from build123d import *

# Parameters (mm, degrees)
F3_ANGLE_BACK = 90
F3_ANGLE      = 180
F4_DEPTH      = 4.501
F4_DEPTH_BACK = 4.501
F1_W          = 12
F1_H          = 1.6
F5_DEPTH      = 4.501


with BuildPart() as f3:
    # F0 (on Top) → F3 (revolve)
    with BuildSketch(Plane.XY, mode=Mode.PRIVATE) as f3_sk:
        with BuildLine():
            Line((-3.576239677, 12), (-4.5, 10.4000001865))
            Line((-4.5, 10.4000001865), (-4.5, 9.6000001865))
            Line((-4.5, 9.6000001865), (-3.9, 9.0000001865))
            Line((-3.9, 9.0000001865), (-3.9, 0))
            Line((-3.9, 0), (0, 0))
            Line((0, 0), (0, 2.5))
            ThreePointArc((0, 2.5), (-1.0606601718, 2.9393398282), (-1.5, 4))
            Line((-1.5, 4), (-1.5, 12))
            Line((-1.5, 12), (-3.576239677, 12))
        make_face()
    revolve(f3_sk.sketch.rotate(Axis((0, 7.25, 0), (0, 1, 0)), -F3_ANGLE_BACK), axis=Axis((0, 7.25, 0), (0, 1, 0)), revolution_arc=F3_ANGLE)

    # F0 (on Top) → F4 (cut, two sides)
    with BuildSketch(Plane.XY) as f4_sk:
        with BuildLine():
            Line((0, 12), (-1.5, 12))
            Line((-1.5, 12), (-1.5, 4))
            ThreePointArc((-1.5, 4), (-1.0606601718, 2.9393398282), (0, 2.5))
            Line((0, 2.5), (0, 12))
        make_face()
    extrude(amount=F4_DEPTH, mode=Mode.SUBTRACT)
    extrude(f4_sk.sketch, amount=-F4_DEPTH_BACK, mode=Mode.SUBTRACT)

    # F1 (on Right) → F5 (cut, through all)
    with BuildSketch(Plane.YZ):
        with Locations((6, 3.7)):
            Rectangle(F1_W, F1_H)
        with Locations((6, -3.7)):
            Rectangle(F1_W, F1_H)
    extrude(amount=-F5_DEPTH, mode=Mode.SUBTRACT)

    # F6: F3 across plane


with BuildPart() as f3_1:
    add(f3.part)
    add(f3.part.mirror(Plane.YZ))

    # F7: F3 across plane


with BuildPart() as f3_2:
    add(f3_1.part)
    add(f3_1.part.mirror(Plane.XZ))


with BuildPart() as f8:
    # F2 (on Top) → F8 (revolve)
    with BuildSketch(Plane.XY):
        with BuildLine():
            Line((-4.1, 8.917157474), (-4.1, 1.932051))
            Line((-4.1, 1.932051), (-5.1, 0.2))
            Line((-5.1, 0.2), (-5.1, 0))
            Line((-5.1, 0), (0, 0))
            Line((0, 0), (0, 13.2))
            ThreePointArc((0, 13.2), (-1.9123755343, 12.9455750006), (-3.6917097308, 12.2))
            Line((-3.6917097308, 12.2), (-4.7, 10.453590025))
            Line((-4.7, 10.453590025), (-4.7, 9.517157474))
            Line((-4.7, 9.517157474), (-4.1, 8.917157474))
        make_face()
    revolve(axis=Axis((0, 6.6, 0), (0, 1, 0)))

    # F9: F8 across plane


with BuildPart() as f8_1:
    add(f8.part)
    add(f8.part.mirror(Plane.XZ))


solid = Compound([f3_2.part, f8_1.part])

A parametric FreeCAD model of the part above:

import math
import FreeCAD as App
import Part
import Sketcher
from FreeCAD import Vector
Q = App.Units.Quantity


def add_polygon(sketch, points):
    """Adds a closed chain of lines whose ends are joined by coincident constraints."""
    first, n = sketch.GeometryCount, len(points)
    for a, b in zip(points, points[1:] + points[:1]):
        sketch.addGeometry(Part.LineSegment(App.Vector(*a, 0), App.Vector(*b, 0)), False)
    for i in range(n):
        sketch.addConstraint(Sketcher.Constraint("Coincident", first + i, 2, first + (i + 1) % n, 1))

doc = App.newDocument("Part")
body = doc.addObject("PartDesign::Body", "Body")

sketch1 = body.newObject("Sketcher::SketchObject", "Sketch")
sketch1.AttachmentSupport = (doc.getObject("YZ_Plane"), [""])
sketch1.MapMode = "FlatFace"
sketch1.addGeometry([
    Part.LineSegment(Vector(12, -3.6, 0), Vector(10.4, -4.5, 0)),
    Part.LineSegment(Vector(10.4, -4.5, 0), Vector(9.6, -4.5, 0)),
    Part.LineSegment(Vector(9.6, -4.5, 0), Vector(9, -3.9, 0)),
    Part.LineSegment(Vector(9, -3.9, 0), Vector(0, -3.9, 0)),
    Part.LineSegment(Vector(0, -3.9, 0), Vector(0, 0, 0)),
    Part.LineSegment(Vector(0, 0, 0), Vector(2.5, 0, 0)),
    Part.ArcOfCircle(Part.Circle(Vector(4, 0, 0), Vector(0, 0, 1), 1.5), math.radians(180), math.radians(270)),
    Part.LineSegment(Vector(4, -1.5, 0), Vector(12, -1.5, 0)),
    Part.LineSegment(Vector(12, -1.5, 0), Vector(12, -3.6, 0)),
], False)
sketch1.addConstraint([
    Sketcher.Constraint("Coincident", 0, 2, 1, 1),
    Sketcher.Constraint("Coincident", 1, 2, 2, 1),
    Sketcher.Constraint("Coincident", 2, 2, 3, 1),
    Sketcher.Constraint("Coincident", 3, 2, 4, 1),
    Sketcher.Constraint("Coincident", 4, 2, 5, 1),
    Sketcher.Constraint("Coincident", 5, 2, 6, 1),
    Sketcher.Constraint("Tangent", 6, 2, 7, 1),
    Sketcher.Constraint("Coincident", 7, 2, 8, 1),
    Sketcher.Constraint("Coincident", 8, 2, 0, 1),
    Sketcher.Constraint("Horizontal", 1),
    Sketcher.Constraint("Horizontal", 3),
    Sketcher.Constraint("Vertical", 4),
    Sketcher.Constraint("Horizontal", 5),
    Sketcher.Constraint("Horizontal", 7),
    Sketcher.Constraint("Vertical", 8),
    Sketcher.Constraint("Coincident", 4, 2, -1, 1),
    Sketcher.Constraint("PointOnObject", 6, 3, -1),
    Sketcher.Constraint("Radius", 6, 1.5),
    Sketcher.Constraint("DistanceX", 3, 2, 3, 1, 9.0),
    Sketcher.Constraint("DistanceX", 7, 1, 7, 2, 8.0),
    Sketcher.Constraint("Angle", 0, Q("-150 deg")),
    Sketcher.Constraint("Angle", 2, Q("135 deg")),
    Sketcher.Constraint("DistanceX", 1, 2, 1, 1, 0.8),
    Sketcher.Constraint("DistanceX", 5, 1, 5, 2, 2.5),
    Sketcher.Constraint("DistanceY", 4, 1, 4, 2, 3.9),
    Sketcher.Constraint("DistanceY", 0, 2, 7, 2, 3.0),
])
revolution = body.newObject("PartDesign::Revolution", "Revolution")
revolution.Profile = sketch1
revolution.ReferenceAxis = (sketch1, ["H_Axis"])
revolution.Angle = 180

sketch2 = body.newObject("Sketcher::SketchObject", "Sketch001")
sketch2.AttachmentSupport = (doc.getObject("XY_Plane"), [""])
sketch2.MapMode = "FlatFace"
sketch2.addGeometry([
    Part.LineSegment(Vector(0, 12, 0), Vector(-1.5, 12, 0)),
    Part.LineSegment(Vector(-1.5, 12, 0), Vector(-1.5, 4, 0)),
    Part.ArcOfCircle(Part.Circle(Vector(0, 4, 0), Vector(0, 0, 1), 1.5), math.radians(180), math.radians(270)),
    Part.LineSegment(Vector(0, 2.5, 0), Vector(0, 12, 0)),
], False)
sketch2.addConstraint([
    Sketcher.Constraint("Coincident", 0, 2, 1, 1),
    Sketcher.Constraint("Tangent", 1, 2, 2, 1),
    Sketcher.Constraint("Coincident", 2, 2, 3, 1),
    Sketcher.Constraint("Coincident", 3, 2, 0, 1),
    Sketcher.Constraint("Horizontal", 0),
    Sketcher.Constraint("Vertical", 1),
    Sketcher.Constraint("Vertical", 3),
    Sketcher.Constraint("PointOnObject", 2, 3, -2),
    Sketcher.Constraint("PointOnObject", 2, 2, -2),
    Sketcher.Constraint("Radius", 2, 1.5),
    Sketcher.Constraint("DistanceY", 1, 2, 1, 1, 8.0),
    Sketcher.Constraint("DistanceY", -1, 1, 2, 3, 4.0),
])
pocket1 = body.newObject("PartDesign::Pocket", "Pocket")
pocket1.Profile = sketch2
pocket1.Type = "ThroughAll"
pocket1.Midplane = True

sketch3 = body.newObject("Sketcher::SketchObject", "Sketch002")
sketch3.AttachmentSupport = (doc.getObject("YZ_Plane"), [""])
sketch3.MapMode = "FlatFace"
add_polygon(sketch3, [(0, 4.5), (0, 2.9), (12, 2.9), (12, 4.5)])
add_polygon(sketch3, [(0, -2.9), (0, -4.5), (12, -4.5), (12, -2.9)])
sketch3.addConstraint([
    Sketcher.Constraint("Vertical", 0),
    Sketcher.Constraint("Horizontal", 1),
    Sketcher.Constraint("Vertical", 2),
    Sketcher.Constraint("Horizontal", 3),
    Sketcher.Constraint("Vertical", 4),
    Sketcher.Constraint("Horizontal", 5),
    Sketcher.Constraint("Vertical", 6),
    Sketcher.Constraint("Horizontal", 7),
    Sketcher.Constraint("Symmetric", 3, 2, 4, 2, -1, 1),
    Sketcher.Constraint("Symmetric", 1, 2, 6, 2, -1),
    Sketcher.Constraint("PointOnObject", 0, 2, -2),
    Sketcher.Constraint("DistanceX", 1, 1, 1, 2, 12.0),
    Sketcher.Constraint("DistanceY", 0, 2, 0, 1, 1.6),
    Sketcher.Constraint("DistanceY", 4, 2, 3, 2, 9.0),
])
pocket2 = body.newObject("PartDesign::Pocket", "Pocket001")
pocket2.Profile = sketch3
pocket2.Type = "ThroughAll"
body2 = doc.addObject("PartDesign::Body", "Body001")
doc.recompute()

body2.BaseFeature = body
doc.recompute()

mirroring = doc.addObject("Part::Mirroring", "Mirroring")
mirroring.Source = body
mirroring.Base = Vector(0, 0, 0)
mirroring.Normal = Vector(1, 0, 0)
body3 = doc.addObject("PartDesign::Body", "Body002")
body3.BaseFeature = mirroring
boolean = body2.newObject("PartDesign::Boolean", "Boolean")
boolean.Type = "Fuse"
boolean.addObjects([body3])
doc.recompute()
body4 = doc.addObject("PartDesign::Body", "Body003")
doc.recompute()

body4.BaseFeature = body2
doc.recompute()

mirroring2 = doc.addObject("Part::Mirroring", "Mirroring001")
mirroring2.Source = body2
mirroring2.Base = Vector(0, 0, 0)
mirroring2.Normal = Vector(0, -1, 0)
body5 = doc.addObject("PartDesign::Body", "Body004")
body5.BaseFeature = mirroring2
boolean2 = body4.newObject("PartDesign::Boolean", "Boolean001")
boolean2.Type = "Fuse"
boolean2.addObjects([body5])
doc.recompute()
body6 = doc.addObject("PartDesign::Body", "Body005")

sketch4 = body6.newObject("Sketcher::SketchObject", "Sketch003")
sketch4.AttachmentSupport = (doc.getObject("XY_Plane005"), [""])
sketch4.MapMode = "FlatFace"
sketch4.addGeometry([
    Part.LineSegment(Vector(-4.1, 8.92, 0), Vector(-4.1, 1.93, 0)),
    Part.LineSegment(Vector(-4.1, 1.93, 0), Vector(-5.1, 0.2, 0)),
    Part.LineSegment(Vector(-5.1, 0.2, 0), Vector(-5.1, 0, 0)),
    Part.LineSegment(Vector(-5.1, 0, 0), Vector(0, 0, 0)),
    Part.LineSegment(Vector(0, 0, 0), Vector(0, 13.2, 0)),
    Part.ArcOfCircle(Part.Circle(Vector(0, 5.89, 0), Vector(0, 0, 1), 7.31), math.radians(90), math.radians(120)),
    Part.LineSegment(Vector(-3.69, 12.2, 0), Vector(-4.7, 10.45, 0)),
    Part.LineSegment(Vector(-4.7, 10.45, 0), Vector(-4.7, 9.52, 0)),
    Part.LineSegment(Vector(-4.7, 9.52, 0), Vector(-4.1, 8.92, 0)),
], False)
sketch4.addConstraint([
    Sketcher.Constraint("Coincident", 0, 2, 1, 1),
    Sketcher.Constraint("Coincident", 1, 2, 2, 1),
    Sketcher.Constraint("Coincident", 2, 2, 3, 1),
    Sketcher.Constraint("Coincident", 3, 2, 4, 1),
    Sketcher.Constraint("Coincident", 4, 2, 5, 1),
    Sketcher.Constraint("Coincident", 5, 2, 6, 1),
    Sketcher.Constraint("Coincident", 6, 2, 7, 1),
    Sketcher.Constraint("Coincident", 7, 2, 8, 1),
    Sketcher.Constraint("Coincident", 8, 2, 0, 1),
    Sketcher.Constraint("Vertical", 0),
    Sketcher.Constraint("Vertical", 2),
    Sketcher.Constraint("Horizontal", 3),
    Sketcher.Constraint("Vertical", 4),
    Sketcher.Constraint("Vertical", 7),
    Sketcher.Constraint("Coincident", 3, 2, -1, 1),
    Sketcher.Constraint("PointOnObject", 5, 3, -2),
    Sketcher.Constraint("Parallel", 1, 6),
    Sketcher.Constraint("Angle", 1, Q("-119.999997 deg")),
    Sketcher.Constraint("Angle", 8, Q("-45 deg")),
    Sketcher.Constraint("Distance", 1, 2.0),
    Sketcher.Constraint("DistanceX", 3, 1, 3, 2, 5.1),
    Sketcher.Constraint("DistanceY", 2, 2, 2, 1, 0.2),
    Sketcher.Constraint("DistanceY", 4, 1, 4, 2, 13.2),
    Sketcher.Constraint("DistanceY", 5, 2, 4, 2, 1.0),
    Sketcher.Constraint("DistanceX", 6, 2, -1, 1, 4.7),
    Sketcher.Constraint("Radius", 5, 7.31436),
    Sketcher.Constraint("DistanceY", 0, 2, 0, 1, 6.985106),
])
revolution2 = body6.newObject("PartDesign::Revolution", "Revolution001")
revolution2.Profile = sketch4
revolution2.ReferenceAxis = (sketch4, ["V_Axis"])
revolution2.Angle = 360
body7 = doc.addObject("PartDesign::Body", "Body006")
doc.recompute()

body7.BaseFeature = body6
doc.recompute()

mirroring3 = doc.addObject("Part::Mirroring", "Mirroring002")
mirroring3.Source = body6
mirroring3.Base = Vector(0, 0, 0)
mirroring3.Normal = Vector(0, -1, 0)
body8 = doc.addObject("PartDesign::Body", "Body007")
body8.BaseFeature = mirroring3
boolean3 = body7.newObject("PartDesign::Boolean", "Boolean002")
boolean3.Type = "Fuse"
boolean3.addObjects([body8])
doc.recompute()
mirroring.Visibility = False
mirroring2.Visibility = False
mirroring3.Visibility = False

doc.recompute()
